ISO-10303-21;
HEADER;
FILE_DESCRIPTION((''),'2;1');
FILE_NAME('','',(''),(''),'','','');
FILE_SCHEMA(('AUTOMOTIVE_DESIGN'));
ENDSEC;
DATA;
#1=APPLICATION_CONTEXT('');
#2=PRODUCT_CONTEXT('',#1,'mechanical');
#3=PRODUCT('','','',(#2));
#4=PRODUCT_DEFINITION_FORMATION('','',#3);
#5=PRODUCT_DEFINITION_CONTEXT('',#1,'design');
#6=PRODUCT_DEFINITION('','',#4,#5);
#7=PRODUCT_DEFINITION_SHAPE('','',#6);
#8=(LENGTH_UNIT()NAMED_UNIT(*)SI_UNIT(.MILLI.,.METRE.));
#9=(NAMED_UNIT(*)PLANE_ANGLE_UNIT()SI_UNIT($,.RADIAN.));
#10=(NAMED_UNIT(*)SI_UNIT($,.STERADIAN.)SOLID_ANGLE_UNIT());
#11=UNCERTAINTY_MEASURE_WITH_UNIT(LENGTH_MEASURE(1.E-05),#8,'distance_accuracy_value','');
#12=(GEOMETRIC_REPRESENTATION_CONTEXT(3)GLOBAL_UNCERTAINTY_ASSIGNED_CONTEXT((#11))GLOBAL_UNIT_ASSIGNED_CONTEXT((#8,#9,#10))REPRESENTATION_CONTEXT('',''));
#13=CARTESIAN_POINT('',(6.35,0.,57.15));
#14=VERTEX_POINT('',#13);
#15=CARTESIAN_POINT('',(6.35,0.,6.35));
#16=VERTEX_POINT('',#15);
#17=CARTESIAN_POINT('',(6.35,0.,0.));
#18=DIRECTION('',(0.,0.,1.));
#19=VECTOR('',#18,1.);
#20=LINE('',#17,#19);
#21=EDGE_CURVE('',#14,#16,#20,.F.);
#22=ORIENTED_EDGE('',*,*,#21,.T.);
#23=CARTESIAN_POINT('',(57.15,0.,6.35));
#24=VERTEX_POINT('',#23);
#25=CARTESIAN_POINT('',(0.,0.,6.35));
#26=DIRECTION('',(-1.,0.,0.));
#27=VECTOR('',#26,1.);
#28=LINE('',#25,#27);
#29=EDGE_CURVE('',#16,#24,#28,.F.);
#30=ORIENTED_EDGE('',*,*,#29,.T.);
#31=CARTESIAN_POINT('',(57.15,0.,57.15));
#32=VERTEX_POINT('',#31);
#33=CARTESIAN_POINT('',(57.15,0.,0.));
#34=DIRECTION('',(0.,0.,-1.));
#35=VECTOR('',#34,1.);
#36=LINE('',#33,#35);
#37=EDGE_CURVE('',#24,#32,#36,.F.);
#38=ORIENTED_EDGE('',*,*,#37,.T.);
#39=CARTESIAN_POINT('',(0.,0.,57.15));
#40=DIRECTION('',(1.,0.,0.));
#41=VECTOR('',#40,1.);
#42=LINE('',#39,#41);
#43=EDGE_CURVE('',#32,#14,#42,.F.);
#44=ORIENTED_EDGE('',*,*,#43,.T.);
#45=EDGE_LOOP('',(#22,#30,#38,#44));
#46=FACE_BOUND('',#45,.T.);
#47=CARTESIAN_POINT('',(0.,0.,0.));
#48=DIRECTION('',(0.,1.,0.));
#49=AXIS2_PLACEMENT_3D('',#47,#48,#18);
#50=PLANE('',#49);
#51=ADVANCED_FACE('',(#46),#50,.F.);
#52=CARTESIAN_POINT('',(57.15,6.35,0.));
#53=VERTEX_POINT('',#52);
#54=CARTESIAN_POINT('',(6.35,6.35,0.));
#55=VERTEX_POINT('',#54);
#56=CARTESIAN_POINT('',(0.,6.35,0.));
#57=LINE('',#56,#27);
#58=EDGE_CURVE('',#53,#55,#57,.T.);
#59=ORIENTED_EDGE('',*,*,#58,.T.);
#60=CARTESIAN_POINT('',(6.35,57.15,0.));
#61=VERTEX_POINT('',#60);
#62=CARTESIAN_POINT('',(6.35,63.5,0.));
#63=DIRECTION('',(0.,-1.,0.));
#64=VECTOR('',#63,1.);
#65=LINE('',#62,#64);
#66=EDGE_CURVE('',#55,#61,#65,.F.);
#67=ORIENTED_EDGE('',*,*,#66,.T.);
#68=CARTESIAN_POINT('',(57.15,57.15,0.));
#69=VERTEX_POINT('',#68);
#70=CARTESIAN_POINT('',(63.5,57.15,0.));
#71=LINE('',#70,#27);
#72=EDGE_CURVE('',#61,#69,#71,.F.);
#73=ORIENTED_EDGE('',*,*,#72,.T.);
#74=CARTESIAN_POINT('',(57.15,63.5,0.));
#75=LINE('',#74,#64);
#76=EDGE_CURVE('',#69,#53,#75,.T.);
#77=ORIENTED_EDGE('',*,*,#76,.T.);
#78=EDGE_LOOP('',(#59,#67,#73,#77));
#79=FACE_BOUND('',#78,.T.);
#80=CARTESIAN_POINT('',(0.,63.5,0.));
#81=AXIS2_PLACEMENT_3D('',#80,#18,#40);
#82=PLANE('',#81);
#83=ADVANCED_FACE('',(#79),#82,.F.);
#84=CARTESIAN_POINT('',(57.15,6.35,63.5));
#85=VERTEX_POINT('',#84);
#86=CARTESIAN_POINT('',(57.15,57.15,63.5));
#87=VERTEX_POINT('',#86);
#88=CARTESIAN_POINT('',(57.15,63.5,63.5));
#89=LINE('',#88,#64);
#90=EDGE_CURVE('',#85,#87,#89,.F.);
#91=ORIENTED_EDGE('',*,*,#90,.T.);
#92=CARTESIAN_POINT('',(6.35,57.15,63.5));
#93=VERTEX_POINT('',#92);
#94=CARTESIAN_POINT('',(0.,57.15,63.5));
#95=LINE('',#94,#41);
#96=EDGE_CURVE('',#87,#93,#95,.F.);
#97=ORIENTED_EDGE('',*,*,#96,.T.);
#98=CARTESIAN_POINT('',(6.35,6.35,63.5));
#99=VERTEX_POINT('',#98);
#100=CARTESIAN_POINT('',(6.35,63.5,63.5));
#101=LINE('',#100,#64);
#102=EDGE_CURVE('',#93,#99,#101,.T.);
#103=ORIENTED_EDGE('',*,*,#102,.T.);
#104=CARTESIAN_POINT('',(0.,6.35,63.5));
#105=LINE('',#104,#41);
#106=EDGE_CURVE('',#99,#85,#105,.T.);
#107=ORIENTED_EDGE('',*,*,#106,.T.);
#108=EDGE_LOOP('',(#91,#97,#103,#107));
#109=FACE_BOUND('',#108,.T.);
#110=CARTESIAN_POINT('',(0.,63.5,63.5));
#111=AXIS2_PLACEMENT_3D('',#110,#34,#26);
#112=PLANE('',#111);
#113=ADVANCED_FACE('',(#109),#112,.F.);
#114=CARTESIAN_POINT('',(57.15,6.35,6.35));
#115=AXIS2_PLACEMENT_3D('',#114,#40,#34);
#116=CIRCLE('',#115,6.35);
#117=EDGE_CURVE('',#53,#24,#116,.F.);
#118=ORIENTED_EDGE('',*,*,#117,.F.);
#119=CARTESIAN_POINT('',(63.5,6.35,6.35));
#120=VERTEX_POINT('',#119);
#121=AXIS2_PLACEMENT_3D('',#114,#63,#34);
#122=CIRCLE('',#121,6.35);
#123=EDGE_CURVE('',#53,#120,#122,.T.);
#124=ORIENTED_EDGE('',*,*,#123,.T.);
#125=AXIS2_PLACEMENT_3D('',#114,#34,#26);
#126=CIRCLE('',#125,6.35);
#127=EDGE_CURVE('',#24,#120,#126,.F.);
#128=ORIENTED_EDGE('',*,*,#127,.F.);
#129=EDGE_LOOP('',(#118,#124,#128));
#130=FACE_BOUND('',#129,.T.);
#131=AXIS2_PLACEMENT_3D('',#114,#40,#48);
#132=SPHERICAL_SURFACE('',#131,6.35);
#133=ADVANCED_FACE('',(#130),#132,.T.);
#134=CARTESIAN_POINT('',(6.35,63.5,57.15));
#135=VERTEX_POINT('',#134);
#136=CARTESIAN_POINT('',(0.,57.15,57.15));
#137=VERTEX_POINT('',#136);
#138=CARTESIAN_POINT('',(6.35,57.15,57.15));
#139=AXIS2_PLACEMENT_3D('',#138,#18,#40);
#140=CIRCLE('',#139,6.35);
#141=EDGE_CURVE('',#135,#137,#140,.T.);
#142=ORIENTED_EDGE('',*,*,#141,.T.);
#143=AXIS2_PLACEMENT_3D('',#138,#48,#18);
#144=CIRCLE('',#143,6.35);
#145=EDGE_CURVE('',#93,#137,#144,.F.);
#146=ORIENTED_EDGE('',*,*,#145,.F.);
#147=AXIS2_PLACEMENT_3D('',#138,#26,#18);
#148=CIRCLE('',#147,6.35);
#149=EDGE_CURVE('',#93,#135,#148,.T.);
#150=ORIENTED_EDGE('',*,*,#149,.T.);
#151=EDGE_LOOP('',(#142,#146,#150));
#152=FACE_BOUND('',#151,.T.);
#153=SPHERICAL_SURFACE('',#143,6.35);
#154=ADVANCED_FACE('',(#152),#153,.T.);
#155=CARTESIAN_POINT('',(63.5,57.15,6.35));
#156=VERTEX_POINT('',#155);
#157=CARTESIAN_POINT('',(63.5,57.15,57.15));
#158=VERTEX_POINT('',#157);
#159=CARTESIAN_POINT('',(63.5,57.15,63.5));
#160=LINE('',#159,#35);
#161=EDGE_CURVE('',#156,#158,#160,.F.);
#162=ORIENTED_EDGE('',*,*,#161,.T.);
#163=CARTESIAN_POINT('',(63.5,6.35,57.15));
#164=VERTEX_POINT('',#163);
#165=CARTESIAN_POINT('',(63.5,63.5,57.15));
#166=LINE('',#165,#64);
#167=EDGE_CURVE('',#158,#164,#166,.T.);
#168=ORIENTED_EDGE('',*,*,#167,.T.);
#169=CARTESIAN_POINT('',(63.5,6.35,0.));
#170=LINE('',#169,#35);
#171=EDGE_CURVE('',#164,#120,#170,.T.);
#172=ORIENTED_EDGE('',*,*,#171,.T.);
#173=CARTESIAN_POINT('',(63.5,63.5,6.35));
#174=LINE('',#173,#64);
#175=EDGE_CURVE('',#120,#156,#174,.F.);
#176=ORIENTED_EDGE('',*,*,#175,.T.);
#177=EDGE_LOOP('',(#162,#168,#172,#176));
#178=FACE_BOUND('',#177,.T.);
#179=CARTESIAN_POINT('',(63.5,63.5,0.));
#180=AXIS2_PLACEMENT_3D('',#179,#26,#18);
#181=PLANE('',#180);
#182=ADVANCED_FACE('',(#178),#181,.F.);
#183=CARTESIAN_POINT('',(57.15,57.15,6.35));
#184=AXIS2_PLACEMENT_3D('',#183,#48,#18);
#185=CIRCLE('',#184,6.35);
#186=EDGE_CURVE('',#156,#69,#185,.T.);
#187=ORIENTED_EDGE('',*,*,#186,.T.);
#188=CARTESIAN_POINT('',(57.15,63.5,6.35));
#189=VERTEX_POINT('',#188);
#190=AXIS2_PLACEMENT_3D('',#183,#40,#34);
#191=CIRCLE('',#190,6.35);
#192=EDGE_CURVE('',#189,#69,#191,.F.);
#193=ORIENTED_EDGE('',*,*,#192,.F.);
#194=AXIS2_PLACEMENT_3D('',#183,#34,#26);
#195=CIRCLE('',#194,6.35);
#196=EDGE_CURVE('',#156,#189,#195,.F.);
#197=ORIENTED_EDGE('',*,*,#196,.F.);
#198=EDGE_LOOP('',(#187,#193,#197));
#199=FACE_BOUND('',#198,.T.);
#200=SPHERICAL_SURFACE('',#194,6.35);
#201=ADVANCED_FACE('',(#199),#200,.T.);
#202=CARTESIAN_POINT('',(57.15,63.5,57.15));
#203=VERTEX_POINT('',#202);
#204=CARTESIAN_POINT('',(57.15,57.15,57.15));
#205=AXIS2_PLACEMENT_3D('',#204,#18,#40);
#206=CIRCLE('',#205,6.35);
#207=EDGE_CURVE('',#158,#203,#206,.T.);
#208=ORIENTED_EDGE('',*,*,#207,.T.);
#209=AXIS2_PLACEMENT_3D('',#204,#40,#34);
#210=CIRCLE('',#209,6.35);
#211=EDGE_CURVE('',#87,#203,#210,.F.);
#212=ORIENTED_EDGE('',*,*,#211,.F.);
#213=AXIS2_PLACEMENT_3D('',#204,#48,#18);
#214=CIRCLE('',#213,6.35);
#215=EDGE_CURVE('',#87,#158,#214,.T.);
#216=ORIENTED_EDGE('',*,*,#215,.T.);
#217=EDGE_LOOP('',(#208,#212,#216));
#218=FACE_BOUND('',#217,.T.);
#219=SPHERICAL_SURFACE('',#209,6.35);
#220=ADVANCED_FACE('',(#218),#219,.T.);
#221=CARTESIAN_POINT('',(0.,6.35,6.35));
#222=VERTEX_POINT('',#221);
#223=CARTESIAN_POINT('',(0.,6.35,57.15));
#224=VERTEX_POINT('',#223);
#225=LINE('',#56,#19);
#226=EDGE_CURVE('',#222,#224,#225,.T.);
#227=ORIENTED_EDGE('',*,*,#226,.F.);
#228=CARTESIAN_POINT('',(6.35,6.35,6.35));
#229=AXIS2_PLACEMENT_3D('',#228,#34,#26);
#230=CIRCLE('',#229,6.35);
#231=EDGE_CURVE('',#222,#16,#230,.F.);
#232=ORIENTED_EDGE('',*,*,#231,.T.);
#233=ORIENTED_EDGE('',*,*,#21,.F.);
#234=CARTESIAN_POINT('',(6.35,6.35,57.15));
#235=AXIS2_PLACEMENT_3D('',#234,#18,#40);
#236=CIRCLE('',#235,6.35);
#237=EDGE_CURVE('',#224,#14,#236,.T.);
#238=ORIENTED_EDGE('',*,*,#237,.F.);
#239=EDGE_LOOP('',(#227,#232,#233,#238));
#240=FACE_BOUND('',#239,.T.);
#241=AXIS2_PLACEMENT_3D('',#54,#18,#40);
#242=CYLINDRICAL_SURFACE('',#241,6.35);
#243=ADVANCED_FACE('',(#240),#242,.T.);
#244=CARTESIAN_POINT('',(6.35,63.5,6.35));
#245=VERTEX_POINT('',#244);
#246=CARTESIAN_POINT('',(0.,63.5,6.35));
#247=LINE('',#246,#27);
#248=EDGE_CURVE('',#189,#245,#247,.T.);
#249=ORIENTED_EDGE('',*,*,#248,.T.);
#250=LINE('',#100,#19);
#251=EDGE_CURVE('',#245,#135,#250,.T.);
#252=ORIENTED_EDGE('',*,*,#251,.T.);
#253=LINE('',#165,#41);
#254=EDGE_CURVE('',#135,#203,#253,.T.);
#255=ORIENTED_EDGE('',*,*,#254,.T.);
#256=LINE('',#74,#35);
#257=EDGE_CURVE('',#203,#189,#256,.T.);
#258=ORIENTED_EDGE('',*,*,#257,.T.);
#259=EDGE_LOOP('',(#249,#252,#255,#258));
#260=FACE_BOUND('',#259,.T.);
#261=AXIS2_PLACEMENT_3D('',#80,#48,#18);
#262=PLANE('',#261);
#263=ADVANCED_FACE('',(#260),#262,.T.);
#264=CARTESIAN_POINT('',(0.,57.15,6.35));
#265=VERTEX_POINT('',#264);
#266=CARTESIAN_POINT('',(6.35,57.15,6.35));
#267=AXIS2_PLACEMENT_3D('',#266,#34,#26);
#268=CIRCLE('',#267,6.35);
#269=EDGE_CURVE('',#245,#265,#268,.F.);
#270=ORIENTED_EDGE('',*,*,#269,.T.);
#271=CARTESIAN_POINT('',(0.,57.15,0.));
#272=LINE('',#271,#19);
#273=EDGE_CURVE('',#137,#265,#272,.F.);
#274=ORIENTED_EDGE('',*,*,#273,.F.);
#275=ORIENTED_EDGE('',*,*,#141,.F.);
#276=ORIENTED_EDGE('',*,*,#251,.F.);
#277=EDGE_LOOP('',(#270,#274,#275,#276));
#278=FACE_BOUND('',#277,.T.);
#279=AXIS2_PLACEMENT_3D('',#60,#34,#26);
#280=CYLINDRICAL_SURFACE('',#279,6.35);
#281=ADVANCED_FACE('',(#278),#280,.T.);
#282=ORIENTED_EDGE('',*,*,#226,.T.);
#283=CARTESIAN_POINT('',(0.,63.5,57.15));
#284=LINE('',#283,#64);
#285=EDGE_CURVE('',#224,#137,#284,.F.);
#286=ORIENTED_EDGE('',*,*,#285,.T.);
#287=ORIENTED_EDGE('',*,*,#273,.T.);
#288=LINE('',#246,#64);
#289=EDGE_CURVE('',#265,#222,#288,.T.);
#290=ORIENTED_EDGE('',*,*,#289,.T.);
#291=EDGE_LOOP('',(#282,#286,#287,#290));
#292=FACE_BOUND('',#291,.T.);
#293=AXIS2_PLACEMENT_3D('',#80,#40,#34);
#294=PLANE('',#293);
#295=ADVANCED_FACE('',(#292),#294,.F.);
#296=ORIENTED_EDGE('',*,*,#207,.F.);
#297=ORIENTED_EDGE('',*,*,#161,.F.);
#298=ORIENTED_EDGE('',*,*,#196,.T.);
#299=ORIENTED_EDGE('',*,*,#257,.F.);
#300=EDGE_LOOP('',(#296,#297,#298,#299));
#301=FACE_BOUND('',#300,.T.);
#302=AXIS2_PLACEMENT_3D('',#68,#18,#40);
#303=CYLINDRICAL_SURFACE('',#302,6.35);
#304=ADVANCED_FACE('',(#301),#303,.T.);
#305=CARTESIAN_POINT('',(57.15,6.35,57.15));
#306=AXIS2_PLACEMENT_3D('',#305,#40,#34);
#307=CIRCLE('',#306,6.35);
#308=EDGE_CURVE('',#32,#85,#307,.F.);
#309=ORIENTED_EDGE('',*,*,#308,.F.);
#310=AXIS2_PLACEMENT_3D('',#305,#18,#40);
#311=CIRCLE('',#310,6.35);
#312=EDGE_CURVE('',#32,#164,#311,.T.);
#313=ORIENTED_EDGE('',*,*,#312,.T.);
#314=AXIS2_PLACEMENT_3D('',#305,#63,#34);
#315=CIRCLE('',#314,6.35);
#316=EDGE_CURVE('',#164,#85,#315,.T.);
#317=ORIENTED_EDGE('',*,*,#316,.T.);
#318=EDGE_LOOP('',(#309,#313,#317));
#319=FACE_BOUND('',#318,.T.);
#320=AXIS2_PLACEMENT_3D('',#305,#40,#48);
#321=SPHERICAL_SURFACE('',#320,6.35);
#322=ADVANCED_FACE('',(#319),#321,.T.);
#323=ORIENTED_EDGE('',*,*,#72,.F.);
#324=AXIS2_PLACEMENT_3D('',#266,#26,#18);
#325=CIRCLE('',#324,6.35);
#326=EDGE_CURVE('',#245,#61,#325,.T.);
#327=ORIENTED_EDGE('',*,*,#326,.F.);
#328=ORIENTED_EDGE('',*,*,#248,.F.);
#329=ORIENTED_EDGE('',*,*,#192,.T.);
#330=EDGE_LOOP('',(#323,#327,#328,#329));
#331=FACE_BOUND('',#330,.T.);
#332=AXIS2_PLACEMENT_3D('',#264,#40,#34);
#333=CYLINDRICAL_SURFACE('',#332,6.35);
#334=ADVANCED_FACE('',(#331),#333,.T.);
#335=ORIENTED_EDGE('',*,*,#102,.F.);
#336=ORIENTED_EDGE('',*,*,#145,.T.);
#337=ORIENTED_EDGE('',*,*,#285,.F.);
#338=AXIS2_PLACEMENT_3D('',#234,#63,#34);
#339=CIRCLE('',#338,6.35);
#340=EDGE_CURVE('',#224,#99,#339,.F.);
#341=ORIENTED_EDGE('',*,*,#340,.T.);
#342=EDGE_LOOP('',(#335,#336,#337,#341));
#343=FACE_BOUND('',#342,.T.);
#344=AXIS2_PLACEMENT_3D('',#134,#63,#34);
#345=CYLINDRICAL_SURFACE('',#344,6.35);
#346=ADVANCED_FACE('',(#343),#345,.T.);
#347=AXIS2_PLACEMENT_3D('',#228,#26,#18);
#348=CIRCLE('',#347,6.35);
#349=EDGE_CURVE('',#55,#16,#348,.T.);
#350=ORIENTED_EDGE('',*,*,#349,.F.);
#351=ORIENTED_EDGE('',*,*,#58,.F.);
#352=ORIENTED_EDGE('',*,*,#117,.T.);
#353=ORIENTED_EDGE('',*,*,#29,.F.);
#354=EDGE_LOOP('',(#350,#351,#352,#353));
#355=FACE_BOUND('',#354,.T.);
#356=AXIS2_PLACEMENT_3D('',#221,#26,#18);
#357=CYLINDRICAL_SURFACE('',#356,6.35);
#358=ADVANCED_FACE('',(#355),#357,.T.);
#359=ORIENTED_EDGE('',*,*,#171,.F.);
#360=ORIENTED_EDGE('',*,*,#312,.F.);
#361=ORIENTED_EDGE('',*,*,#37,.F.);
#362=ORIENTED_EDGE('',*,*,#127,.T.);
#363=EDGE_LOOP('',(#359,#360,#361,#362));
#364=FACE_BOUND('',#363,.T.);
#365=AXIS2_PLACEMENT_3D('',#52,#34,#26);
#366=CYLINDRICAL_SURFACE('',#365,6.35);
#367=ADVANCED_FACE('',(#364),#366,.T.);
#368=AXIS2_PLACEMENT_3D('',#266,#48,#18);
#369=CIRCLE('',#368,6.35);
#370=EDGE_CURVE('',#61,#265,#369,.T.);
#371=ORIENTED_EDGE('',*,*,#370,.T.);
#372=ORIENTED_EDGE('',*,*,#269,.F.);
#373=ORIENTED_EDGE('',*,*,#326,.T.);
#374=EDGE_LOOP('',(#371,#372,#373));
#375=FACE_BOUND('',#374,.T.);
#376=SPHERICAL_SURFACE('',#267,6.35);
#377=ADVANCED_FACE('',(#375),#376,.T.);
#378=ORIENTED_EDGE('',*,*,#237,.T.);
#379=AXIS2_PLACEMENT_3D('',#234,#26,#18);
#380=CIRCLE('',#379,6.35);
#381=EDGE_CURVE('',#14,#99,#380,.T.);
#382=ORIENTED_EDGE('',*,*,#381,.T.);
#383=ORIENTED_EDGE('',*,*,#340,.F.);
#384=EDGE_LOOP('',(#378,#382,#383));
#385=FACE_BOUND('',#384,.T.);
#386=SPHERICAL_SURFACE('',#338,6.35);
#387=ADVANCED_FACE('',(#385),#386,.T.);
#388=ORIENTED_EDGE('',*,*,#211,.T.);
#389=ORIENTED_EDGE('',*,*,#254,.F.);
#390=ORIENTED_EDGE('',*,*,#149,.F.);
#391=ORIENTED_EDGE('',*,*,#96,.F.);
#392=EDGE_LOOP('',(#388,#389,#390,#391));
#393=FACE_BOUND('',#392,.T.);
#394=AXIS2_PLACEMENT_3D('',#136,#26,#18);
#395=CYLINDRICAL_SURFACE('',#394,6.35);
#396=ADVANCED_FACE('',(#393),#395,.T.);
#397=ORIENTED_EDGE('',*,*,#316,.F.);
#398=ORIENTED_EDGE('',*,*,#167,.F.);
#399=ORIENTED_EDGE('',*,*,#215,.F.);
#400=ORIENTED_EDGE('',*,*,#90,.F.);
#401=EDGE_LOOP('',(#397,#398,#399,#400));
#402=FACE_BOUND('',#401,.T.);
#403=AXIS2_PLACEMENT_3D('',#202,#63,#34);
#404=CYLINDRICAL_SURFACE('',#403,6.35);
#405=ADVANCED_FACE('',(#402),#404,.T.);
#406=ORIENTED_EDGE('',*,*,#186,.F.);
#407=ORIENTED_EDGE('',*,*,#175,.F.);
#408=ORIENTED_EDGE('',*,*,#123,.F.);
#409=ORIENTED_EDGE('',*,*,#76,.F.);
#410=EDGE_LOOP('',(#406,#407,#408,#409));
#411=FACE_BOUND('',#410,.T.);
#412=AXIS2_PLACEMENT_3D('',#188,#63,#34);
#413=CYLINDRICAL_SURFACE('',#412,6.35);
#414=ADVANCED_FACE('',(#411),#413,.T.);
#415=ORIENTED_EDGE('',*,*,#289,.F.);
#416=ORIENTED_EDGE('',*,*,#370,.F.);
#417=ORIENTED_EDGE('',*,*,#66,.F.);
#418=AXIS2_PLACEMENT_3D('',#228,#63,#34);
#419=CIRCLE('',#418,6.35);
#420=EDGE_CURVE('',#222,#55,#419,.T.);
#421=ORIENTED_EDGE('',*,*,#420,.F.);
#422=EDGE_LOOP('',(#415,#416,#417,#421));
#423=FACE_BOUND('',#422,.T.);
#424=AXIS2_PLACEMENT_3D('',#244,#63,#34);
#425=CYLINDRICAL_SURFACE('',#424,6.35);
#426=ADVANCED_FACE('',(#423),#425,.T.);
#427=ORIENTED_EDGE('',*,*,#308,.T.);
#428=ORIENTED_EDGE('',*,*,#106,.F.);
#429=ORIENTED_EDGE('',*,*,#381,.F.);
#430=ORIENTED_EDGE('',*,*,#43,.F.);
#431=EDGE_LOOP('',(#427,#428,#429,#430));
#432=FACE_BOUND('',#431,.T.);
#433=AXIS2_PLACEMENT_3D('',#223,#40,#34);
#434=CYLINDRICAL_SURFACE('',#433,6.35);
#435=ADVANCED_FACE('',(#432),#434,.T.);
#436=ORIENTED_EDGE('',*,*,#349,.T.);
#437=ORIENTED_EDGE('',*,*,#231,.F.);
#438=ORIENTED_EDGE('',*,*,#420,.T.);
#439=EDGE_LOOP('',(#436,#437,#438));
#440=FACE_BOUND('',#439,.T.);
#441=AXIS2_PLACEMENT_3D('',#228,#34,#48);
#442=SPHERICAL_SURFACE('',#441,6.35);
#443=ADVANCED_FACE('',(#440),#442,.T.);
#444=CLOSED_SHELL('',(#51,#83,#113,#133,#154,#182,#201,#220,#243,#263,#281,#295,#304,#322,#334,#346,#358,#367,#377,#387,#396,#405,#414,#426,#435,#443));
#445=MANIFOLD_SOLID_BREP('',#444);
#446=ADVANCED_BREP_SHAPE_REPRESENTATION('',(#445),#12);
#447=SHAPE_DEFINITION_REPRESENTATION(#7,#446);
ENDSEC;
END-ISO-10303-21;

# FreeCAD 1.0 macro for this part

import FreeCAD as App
import Part
import Sketcher

V = App.Vector
Q = App.Units.Quantity

doc = App.newDocument("Part")
params = doc.addObject("Spreadsheet::Sheet", "Params")
for row, (alias, value) in enumerate([
    ("sketch1_width", "2.5 in"),
    ("pad1_length", "2.5 in"),
    ("fillet_radius", "0.25 in"),
], start=1):
    params.set(f"A{row}", alias)
    params.set(f"B{row}", "=" + value)
    params.setAlias(f"B{row}", alias)

body = doc.addObject("PartDesign::Body", "Body")

sketch1 = body.newObject("Sketcher::SketchObject", "Sketch")
sketch1.AttachmentSupport = (doc.getObject("XZ_Plane"), [""])
sketch1.MapMode = "FlatFace"
sketch1.addGeometry([
    Part.LineSegment(V(0, 0, 0), V(0, 63.5, 0)),
    Part.LineSegment(V(0, 63.5, 0), V(63.5, 63.5, 0)),
    Part.LineSegment(V(63.5, 63.5, 0), V(63.5, 0, 0)),
    Part.LineSegment(V(63.5, 0, 0), V(0, 0, 0)),
], False)
sketch1.addConstraint([
    Sketcher.Constraint("Coincident", 0, 2, 1, 1),
    Sketcher.Constraint("Coincident", 1, 2, 2, 1),
    Sketcher.Constraint("Coincident", 2, 2, 3, 1),
    Sketcher.Constraint("Coincident", 3, 2, 0, 1),
    Sketcher.Constraint("Vertical", 0),
    Sketcher.Constraint("Horizontal", 1),
    Sketcher.Constraint("Vertical", 2),
    Sketcher.Constraint("Horizontal", 3),
    Sketcher.Constraint("Coincident", 3, 2, -1, 1),
    Sketcher.Constraint("Equal", 3, 0),
    Sketcher.Constraint("DistanceX", 1, 1, 1, 2, Q("2.5 in")),
])
sketch1.setExpression("Constraints[10]", "Params.sketch1_width")
pad1 = body.newObject("PartDesign::Pad", "Pad")
pad1.Profile = sketch1
pad1.setExpression("Length", "Params.pad1_length")
pad1.Reversed = True
doc.recompute()

fillet = body.newObject("PartDesign::Fillet", "Fillet")
fillet.Base = (pad1, ["Edge1"])
fillet.UseAllEdges = True
fillet.setExpression("Radius", "Params.fillet_radius")

doc.recompute()
